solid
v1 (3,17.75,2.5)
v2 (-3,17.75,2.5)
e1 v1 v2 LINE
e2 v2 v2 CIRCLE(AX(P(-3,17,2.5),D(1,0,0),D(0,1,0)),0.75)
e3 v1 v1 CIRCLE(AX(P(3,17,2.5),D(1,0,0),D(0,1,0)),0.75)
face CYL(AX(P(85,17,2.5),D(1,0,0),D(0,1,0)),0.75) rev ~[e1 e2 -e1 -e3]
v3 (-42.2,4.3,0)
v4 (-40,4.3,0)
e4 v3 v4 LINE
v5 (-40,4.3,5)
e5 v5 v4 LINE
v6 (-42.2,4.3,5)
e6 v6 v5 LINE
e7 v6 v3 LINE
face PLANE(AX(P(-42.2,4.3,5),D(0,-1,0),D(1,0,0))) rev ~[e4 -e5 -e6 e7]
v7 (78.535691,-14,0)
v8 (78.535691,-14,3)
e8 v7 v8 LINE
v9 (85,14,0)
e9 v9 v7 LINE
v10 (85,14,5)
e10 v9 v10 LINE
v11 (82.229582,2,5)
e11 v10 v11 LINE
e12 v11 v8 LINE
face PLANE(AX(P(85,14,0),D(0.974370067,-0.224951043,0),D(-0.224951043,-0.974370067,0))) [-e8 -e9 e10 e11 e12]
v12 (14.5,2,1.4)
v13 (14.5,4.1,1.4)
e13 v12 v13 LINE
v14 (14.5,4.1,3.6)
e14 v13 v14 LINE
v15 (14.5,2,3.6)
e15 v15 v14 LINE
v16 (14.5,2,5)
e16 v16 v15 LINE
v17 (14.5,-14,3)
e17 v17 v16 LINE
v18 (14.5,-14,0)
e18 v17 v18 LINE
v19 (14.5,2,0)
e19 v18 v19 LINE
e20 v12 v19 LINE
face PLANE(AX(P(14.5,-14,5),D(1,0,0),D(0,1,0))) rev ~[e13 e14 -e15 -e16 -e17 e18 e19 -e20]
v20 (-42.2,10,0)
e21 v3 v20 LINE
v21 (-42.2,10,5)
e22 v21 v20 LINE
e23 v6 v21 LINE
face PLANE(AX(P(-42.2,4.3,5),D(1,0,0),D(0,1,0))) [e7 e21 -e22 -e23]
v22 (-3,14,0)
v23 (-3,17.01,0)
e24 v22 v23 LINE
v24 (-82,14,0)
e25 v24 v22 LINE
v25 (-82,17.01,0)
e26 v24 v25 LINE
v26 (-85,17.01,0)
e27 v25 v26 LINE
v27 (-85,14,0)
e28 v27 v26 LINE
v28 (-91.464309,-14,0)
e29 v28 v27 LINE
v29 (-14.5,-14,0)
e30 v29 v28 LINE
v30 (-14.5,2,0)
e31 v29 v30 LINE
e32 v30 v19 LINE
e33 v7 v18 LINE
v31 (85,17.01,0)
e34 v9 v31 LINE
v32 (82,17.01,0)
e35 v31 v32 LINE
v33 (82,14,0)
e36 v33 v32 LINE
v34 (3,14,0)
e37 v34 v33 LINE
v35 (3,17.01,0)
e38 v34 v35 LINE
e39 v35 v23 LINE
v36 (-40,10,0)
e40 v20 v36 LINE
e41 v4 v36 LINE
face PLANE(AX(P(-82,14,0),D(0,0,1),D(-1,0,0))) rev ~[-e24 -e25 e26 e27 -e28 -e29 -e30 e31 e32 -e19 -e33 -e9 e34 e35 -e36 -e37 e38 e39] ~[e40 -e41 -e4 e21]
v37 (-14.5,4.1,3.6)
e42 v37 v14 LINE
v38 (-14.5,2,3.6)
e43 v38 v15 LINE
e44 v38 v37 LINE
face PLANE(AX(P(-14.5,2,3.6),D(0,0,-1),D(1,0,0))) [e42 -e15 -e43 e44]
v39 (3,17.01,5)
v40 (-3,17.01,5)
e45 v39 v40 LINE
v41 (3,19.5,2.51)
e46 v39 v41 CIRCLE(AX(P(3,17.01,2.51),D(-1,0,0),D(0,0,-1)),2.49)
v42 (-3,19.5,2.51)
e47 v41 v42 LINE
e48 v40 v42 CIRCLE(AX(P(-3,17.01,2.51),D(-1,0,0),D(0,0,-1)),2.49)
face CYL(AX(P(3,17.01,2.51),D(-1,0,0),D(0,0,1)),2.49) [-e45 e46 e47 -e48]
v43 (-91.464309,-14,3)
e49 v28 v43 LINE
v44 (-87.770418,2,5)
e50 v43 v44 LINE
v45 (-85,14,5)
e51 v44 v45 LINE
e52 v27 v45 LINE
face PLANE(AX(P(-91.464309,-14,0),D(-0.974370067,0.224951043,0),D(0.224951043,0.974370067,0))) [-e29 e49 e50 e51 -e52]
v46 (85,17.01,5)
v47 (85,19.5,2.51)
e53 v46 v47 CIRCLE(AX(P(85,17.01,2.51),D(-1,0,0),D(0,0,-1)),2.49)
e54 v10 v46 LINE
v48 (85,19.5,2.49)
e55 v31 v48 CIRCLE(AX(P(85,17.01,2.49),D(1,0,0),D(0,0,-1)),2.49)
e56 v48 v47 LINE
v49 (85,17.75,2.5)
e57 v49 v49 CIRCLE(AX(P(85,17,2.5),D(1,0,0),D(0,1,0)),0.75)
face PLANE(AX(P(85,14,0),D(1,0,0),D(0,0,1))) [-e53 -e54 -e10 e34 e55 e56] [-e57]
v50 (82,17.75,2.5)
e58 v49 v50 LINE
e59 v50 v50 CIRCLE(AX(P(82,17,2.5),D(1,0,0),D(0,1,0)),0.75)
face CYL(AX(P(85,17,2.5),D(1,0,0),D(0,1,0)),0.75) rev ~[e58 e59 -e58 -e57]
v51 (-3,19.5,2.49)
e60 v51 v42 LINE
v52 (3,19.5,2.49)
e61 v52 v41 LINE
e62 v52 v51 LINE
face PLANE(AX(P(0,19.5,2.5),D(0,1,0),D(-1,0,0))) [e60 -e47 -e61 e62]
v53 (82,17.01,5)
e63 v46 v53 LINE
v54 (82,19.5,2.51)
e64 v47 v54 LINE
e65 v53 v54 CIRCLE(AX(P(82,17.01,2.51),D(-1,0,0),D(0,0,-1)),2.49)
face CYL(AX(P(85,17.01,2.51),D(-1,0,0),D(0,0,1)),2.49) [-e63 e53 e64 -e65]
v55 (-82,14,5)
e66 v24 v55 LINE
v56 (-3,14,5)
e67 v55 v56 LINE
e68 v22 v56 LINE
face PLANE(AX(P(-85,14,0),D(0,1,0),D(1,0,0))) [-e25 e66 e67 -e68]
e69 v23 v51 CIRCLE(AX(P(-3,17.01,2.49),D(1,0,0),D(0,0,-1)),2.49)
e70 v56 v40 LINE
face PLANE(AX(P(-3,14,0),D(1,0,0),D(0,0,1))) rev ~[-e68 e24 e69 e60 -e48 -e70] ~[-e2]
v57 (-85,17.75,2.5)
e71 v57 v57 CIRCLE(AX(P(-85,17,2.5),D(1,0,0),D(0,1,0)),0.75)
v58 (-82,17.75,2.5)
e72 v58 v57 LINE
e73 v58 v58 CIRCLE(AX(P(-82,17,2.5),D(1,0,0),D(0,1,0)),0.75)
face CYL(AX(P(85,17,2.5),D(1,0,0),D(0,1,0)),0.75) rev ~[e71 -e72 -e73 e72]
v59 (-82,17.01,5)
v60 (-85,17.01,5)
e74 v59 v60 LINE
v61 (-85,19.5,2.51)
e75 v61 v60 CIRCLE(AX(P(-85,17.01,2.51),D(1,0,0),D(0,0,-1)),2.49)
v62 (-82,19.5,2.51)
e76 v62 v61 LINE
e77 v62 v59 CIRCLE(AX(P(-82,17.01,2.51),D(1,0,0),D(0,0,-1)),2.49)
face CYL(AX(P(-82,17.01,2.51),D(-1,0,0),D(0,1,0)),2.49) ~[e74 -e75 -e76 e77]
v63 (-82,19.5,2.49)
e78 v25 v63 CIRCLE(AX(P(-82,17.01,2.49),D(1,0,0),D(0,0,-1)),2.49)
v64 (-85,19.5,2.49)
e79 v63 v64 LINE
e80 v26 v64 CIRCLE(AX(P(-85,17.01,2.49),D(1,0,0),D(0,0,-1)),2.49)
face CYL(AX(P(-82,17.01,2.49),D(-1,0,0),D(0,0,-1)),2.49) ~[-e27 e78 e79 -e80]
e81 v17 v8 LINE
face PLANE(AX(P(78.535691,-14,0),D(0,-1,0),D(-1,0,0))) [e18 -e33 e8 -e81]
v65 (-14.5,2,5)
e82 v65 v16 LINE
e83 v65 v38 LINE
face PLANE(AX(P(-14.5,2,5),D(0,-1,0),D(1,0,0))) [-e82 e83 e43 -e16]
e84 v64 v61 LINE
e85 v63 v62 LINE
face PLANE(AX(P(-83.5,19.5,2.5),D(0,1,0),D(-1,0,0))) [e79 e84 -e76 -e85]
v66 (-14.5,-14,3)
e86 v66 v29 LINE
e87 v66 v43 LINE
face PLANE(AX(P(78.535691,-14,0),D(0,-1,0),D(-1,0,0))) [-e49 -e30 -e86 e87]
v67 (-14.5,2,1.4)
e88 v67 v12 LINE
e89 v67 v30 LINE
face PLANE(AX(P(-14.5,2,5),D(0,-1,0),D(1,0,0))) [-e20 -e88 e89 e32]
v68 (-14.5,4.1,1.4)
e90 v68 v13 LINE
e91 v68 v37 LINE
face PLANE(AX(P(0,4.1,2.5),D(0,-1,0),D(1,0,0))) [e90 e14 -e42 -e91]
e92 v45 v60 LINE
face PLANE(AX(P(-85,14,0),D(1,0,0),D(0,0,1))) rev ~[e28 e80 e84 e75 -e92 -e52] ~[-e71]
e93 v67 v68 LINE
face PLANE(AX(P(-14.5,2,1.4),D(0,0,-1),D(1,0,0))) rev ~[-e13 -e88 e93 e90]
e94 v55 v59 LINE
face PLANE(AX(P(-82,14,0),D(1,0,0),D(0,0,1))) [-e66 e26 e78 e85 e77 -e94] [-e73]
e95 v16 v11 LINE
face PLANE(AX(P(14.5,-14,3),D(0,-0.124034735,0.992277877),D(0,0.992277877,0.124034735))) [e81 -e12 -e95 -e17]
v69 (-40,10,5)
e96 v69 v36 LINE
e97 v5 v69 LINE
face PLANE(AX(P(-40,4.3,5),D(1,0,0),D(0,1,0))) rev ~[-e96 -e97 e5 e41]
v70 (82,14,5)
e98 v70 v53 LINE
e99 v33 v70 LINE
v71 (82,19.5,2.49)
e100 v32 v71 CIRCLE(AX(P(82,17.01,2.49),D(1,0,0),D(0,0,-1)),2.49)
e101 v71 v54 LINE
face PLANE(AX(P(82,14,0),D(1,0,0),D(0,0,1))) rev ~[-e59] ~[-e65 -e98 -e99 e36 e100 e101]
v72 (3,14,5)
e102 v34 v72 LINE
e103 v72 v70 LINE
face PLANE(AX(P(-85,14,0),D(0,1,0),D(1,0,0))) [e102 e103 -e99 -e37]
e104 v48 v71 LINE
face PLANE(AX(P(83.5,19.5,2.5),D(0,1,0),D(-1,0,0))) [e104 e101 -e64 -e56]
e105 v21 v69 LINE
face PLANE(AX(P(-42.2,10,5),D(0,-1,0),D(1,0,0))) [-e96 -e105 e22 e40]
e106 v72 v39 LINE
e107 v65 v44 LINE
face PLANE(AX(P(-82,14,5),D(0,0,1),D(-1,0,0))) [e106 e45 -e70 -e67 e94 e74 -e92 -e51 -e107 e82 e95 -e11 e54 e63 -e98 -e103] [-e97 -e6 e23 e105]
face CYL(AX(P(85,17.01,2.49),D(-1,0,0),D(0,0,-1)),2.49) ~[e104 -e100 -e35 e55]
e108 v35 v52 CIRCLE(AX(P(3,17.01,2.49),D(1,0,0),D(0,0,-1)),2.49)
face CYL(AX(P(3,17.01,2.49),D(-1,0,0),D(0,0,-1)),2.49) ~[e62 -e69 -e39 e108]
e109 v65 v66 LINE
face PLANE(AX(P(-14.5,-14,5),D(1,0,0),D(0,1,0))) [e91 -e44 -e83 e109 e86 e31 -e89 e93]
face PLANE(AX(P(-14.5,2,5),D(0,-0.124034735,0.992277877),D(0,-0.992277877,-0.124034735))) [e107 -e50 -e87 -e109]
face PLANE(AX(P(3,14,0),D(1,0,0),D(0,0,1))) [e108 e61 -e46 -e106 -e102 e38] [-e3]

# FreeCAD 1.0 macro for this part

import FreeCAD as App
import Part
import Sketcher

V = App.Vector
Q = App.Units.Quantity


def edges_at(feature, points):
    """Names of the edges that pass closest to the given points."""
    edges = feature.Shape.Edges
    near = lambda p: min(range(len(edges)), key=lambda i: edges[i].distToShape(Part.Vertex(*p))[0])
    return sorted({f"Edge{near(p) + 1}" for p in points})

doc = App.newDocument("Part")
body = doc.addObject("PartDesign::Body", "Body")

# Sketch on XY plane
sketch1 = body.newObject("Sketcher::SketchObject", "Sketch")
sketch1.AttachmentSupport = (doc.getObject("XY_Plane"), [""])
sketch1.MapMode = "FlatFace"
sketch1.addGeometry(Part.LineSegment(V(85, 14, 0), V(-85, 14, 0)), False)
sketch1.addGeometry(Part.LineSegment(V(-85, 14, 0), V(-91, -14, 0)), False)
sketch1.addGeometry(Part.LineSegment(V(-91, -14, 0), V(79, -14, 0)), False)
sketch1.addGeometry(Part.LineSegment(V(79, -14, 0), V(85, 14, 0)), False)
sketch1.addConstraint(Sketcher.Constraint("Coincident", 0, 2, 1, 1))
sketch1.addConstraint(Sketcher.Constraint("Coincident", 1, 2, 2, 1))
sketch1.addConstraint(Sketcher.Constraint("Coincident", 2, 2, 3, 1))
sketch1.addConstraint(Sketcher.Constraint("Coincident", 3, 2, 0, 1))
sketch1.addConstraint(Sketcher.Constraint("Horizontal", 0))
sketch1.addConstraint(Sketcher.Constraint("Horizontal", 2))
sketch1.addConstraint(Sketcher.Constraint("Parallel", 1, 3))
sketch1.addConstraint(Sketcher.Constraint("DistanceX", 0, 2, 0, 1, 170.0))
sketch1.addConstraint(Sketcher.Constraint("Angle", 1, Q("-102.999999 deg")))
sketch1.addConstraint(Sketcher.Constraint("DistanceX", 0, 2, -1, 1, 85.0))
sketch1.addConstraint(Sketcher.Constraint("DistanceY", -1, 1, 0, 2, 14.0))
sketch1.addConstraint(Sketcher.Constraint("DistanceY", 1, 2, -1, 1, 14.0))
pad1 = body.newObject("PartDesign::Pad", "Pad")
pad1.Profile = sketch1
pad1.Length = 5

# Sketch on XY plane
sketch2 = body.newObject("Sketcher::SketchObject", "Sketch001")
sketch2.AttachmentSupport = (doc.getObject("XY_Plane"), [""])
sketch2.MapMode = "FlatFace"
sketch2.AttachmentOffset = App.Placement(V(0, 0, 5), App.Rotation())
sketch2.addGeometry(Part.LineSegment(V(-14, 2, 0), V(-14, -14, 0)), False)
sketch2.addGeometry(Part.LineSegment(V(-14, -14, 0), V(14, -14, 0)), False)
sketch2.addGeometry(Part.LineSegment(V(14, -14, 0), V(14, 2, 0)), False)
sketch2.addGeometry(Part.LineSegment(V(14, 2, 0), V(-14, 2, 0)), False)
sketch2.addConstraint(Sketcher.Constraint("Coincident", 0, 2, 1, 1))
sketch2.addConstraint(Sketcher.Constraint("Coincident", 1, 2, 2, 1))
sketch2.addConstraint(Sketcher.Constraint("Coincident", 2, 2, 3, 1))
sketch2.addConstraint(Sketcher.Constraint("Coincident", 3, 2, 0, 1))
sketch2.addConstraint(Sketcher.Constraint("Vertical", 0))
sketch2.addConstraint(Sketcher.Constraint("Horizontal", 1))
sketch2.addConstraint(Sketcher.Constraint("Vertical", 2))
sketch2.addConstraint(Sketcher.Constraint("Horizontal", 3))
sketch2.addConstraint(Sketcher.Constraint("DistanceX", 1, 1, 1, 2, 29.0))
sketch2.addConstraint(Sketcher.Constraint("DistanceY", 0, 2, 0, 1, 16.0))
sketch2.addConstraint(Sketcher.Constraint("DistanceY", 0, 2, -1, 1, 14.0))
sketch2.addConstraint(Sketcher.Constraint("DistanceX", 0, 2, -1, 1, 14.5))
pocket1 = body.newObject("PartDesign::Pocket", "Pocket")
pocket1.Profile = sketch2
pocket1.Length = 5

# Sketch on XZ plane
sketch3 = body.newObject("Sketcher::SketchObject", "Sketch002")
sketch3.AttachmentSupport = (doc.getObject("XZ_Plane"), [""])
sketch3.MapMode = "FlatFace"
sketch3.AttachmentOffset = App.Placement(V(0, 0, -2), App.Rotation())
sketch3.addGeometry(Part.LineSegment(V(-14.5, 3.6, 0), V(-14.5, 1.4, 0)), False)
sketch3.addGeometry(Part.LineSegment(V(-14.5, 1.4, 0), V(14.5, 1.4, 0)), False)
sketch3.addGeometry(Part.LineSegment(V(14.5, 1.4, 0), V(14.5, 3.6, 0)), False)
sketch3.addGeometry(Part.LineSegment(V(14.5, 3.6, 0), V(-14.5, 3.6, 0)), False)
sketch3.addConstraint(Sketcher.Constraint("Coincident", 0, 2, 1, 1))
sketch3.addConstraint(Sketcher.Constraint("Coincident", 1, 2, 2, 1))
sketch3.addConstraint(Sketcher.Constraint("Coincident", 2, 2, 3, 1))
sketch3.addConstraint(Sketcher.Constraint("Coincident", 3, 2, 0, 1))
sketch3.addConstraint(Sketcher.Constraint("Vertical", 0))
sketch3.addConstraint(Sketcher.Constraint("Horizontal", 1))
sketch3.addConstraint(Sketcher.Constraint("Vertical", 2))
sketch3.addConstraint(Sketcher.Constraint("Horizontal", 3))
sketch3.addConstraint(Sketcher.Constraint("DistanceX", 1, 1, 1, 2, 29.0))
sketch3.addConstraint(Sketcher.Constraint("DistanceY", 0, 2, 0, 1, 2.2))
sketch3.addConstraint(Sketcher.Constraint("DistanceX", 0, 2, -1, 1, 14.5))
sketch3.addConstraint(Sketcher.Constraint("DistanceY", -1, 1, 0, 2, 1.4))
pocket2 = body.newObject("PartDesign::Pocket", "Pocket001")
pocket2.Profile = sketch3
pocket2.Length = 2.1

# Sketch on YZ plane
sketch4 = body.newObject("Sketcher::SketchObject", "Sketch003")
sketch4.AttachmentSupport = (doc.getObject("YZ_Plane"), [""])
sketch4.MapMode = "FlatFace"
sketch4.AttachmentOffset = App.Placement(V(0, 0, -14.5), App.Rotation())
sketch4.addGeometry(Part.LineSegment(V(2, 5, 0), V(-14, 5, 0)), False)
sketch4.addGeometry(Part.LineSegment(V(-14, 5, 0), V(-14, 3, 0)), False)
sketch4.addGeometry(Part.LineSegment(V(-14, 3, 0), V(2, 5, 0)), False)
sketch4.addConstraint(Sketcher.Constraint("Coincident", 0, 2, 1, 1))
sketch4.addConstraint(Sketcher.Constraint("Coincident", 1, 2, 2, 1))
sketch4.addConstraint(Sketcher.Constraint("Coincident", 2, 2, 0, 1))
sketch4.addConstraint(Sketcher.Constraint("Horizontal", 0))
sketch4.addConstraint(Sketcher.Constraint("Vertical", 1))
sketch4.addConstraint(Sketcher.Constraint("DistanceX", 0, 2, 0, 1, 16.0))
sketch4.addConstraint(Sketcher.Constraint("DistanceY", 1, 2, 1, 1, 2.0))
sketch4.addConstraint(Sketcher.Constraint("DistanceX", 0, 2, -1, 1, 14.0))
sketch4.addConstraint(Sketcher.Constraint("DistanceY", -1, 1, 0, 2, 5.0))
pocket3 = body.newObject("PartDesign::Pocket", "Pocket002")
pocket3.Profile = sketch4
pocket3.Length = 100

# Sketch on YZ plane
sketch5 = body.newObject("Sketcher::SketchObject", "Sketch004")
sketch5.AttachmentSupport = (doc.getObject("YZ_Plane"), [""])
sketch5.MapMode = "FlatFace"
sketch5.AttachmentOffset = App.Placement(V(0, 0, 14.5), App.Rotation())
sketch5.addGeometry(Part.LineSegment(V(-14, 5, 0), V(2, 5, 0)), False)
sketch5.addGeometry(Part.LineSegment(V(2, 5, 0), V(-14, 3, 0)), False)
sketch5.addGeometry(Part.LineSegment(V(-14, 3, 0), V(-14, 5, 0)), False)
sketch5.addConstraint(Sketcher.Constraint("Coincident", 0, 2, 1, 1))
sketch5.addConstraint(Sketcher.Constraint("Coincident", 1, 2, 2, 1))
sketch5.addConstraint(Sketcher.Constraint("Coincident", 2, 2, 0, 1))
sketch5.addConstraint(Sketcher.Constraint("Horizontal", 0))
sketch5.addConstraint(Sketcher.Constraint("Vertical", 2))
sketch5.addConstraint(Sketcher.Constraint("DistanceX", 0, 1, 0, 2, 16.0))
sketch5.addConstraint(Sketcher.Constraint("DistanceY", 2, 1, 2, 2, 2.0))
sketch5.addConstraint(Sketcher.Constraint("DistanceX", -1, 1, 0, 2, 2.0))
sketch5.addConstraint(Sketcher.Constraint("DistanceY", -1, 1, 0, 2, 5.0))
pocket4 = body.newObject("PartDesign::Pocket", "Pocket003")
pocket4.Profile = sketch5
pocket4.Length = 100
pocket4.Reversed = True

# Sketch on XZ plane
sketch6 = body.newObject("Sketcher::SketchObject", "Sketch005")
sketch6.AttachmentSupport = (doc.getObject("XZ_Plane"), [""])
sketch6.MapMode = "FlatFace"
sketch6.AttachmentOffset = App.Placement(V(0, 0, -14), App.Rotation())
sketch6.addGeometry(Part.LineSegment(V(-82, 5, 0), V(-82, 0, 0)), False)
sketch6.addGeometry(Part.LineSegment(V(-82, 0, 0), V(-85, 0, 0)), False)
sketch6.addGeometry(Part.LineSegment(V(-85, 0, 0), V(-85, 5, 0)), False)
sketch6.addGeometry(Part.LineSegment(V(-85, 5, 0), V(-82, 5, 0)), False)
sketch6.addGeometry(Part.LineSegment(V(85, 5, 0), V(85, 0, 0)), False)
sketch6.addGeometry(Part.LineSegment(V(85, 0, 0), V(82, 0, 0)), False)
sketch6.addGeometry(Part.LineSegment(V(82, 0, 0), V(82, 5, 0)), False)
sketch6.addGeometry(Part.LineSegment(V(82, 5, 0), V(85, 5, 0)), False)
sketch6.addGeometry(Part.LineSegment(V(3, 5, 0), V(3, 0, 0)), False)
sketch6.addGeometry(Part.LineSegment(V(3, 0, 0), V(-3, 0, 0)), False)
sketch6.addGeometry(Part.LineSegment(V(-3, 0, 0), V(-3, 5, 0)), False)
sketch6.addGeometry(Part.LineSegment(V(-3, 5, 0), V(3, 5, 0)), False)
sketch6.addConstraint(Sketcher.Constraint("Coincident", 0, 2, 1, 1))
sketch6.addConstraint(Sketcher.Constraint("Coincident", 1, 2, 2, 1))
sketch6.addConstraint(Sketcher.Constraint("Coincident", 2, 2, 3, 1))
sketch6.addConstraint(Sketcher.Constraint("Coincident", 3, 2, 0, 1))
sketch6.addConstraint(Sketcher.Constraint("Coincident", 4, 2, 5, 1))
sketch6.addConstraint(Sketcher.Constraint("Coincident", 5, 2, 6, 1))
sketch6.addConstraint(Sketcher.Constraint("Coincident", 6, 2, 7, 1))
sketch6.addConstraint(Sketcher.Constraint("Coincident", 7, 2, 4, 1))
sketch6.addConstraint(Sketcher.Constraint("Coincident", 8, 2, 9, 1))
sketch6.addConstraint(Sketcher.Constraint("Coincident", 9, 2, 10, 1))
sketch6.addConstraint(Sketcher.Constraint("Coincident", 10, 2, 11, 1))
sketch6.addConstraint(Sketcher.Constraint("Coincident", 11, 2, 8, 1))
sketch6.addConstraint(Sketcher.Constraint("Vertical", 0))
sketch6.addConstraint(Sketcher.Constraint("Horizontal", 1))
sketch6.addConstraint(Sketcher.Constraint("Vertical", 2))
sketch6.addConstraint(Sketcher.Constraint("Horizontal", 3))
sketch6.addConstraint(Sketcher.Constraint("Vertical", 4))
sketch6.addConstraint(Sketcher.Constraint("Horizontal", 5))
sketch6.addConstraint(Sketcher.Constraint("Vertical", 6))
sketch6.addConstraint(Sketcher.Constraint("Horizontal", 7))
sketch6.addConstraint(Sketcher.Constraint("Vertical", 8))
sketch6.addConstraint(Sketcher.Constraint("Horizontal", 9))
sketch6.addConstraint(Sketcher.Constraint("Vertical", 10))
sketch6.addConstraint(Sketcher.Constraint("Horizontal", 11))
sketch6.addConstraint(Sketcher.Constraint("Symmetric", 1, 2, 4, 2, -1, 1))
sketch6.addConstraint(Sketcher.Constraint("Symmetric", 8, 2, 9, 2, -1, 1))
sketch6.addConstraint(Sketcher.Constraint("Symmetric", 0, 2, 5, 2, -2))
sketch6.addConstraint(Sketcher.Constraint("Horizontal", 3, 2, 6, 2))
sketch6.addConstraint(Sketcher.Constraint("Horizontal", 7, 2, 10, 2))
sketch6.addConstraint(Sketcher.Constraint("DistanceX", 1, 2, 1, 1, 3.0))
sketch6.addConstraint(Sketcher.Constraint("DistanceX", 9, 2, 9, 1, 6.0))
sketch6.addConstraint(Sketcher.Constraint("DistanceY", 0, 2, 0, 1, 5.0))
sketch6.addConstraint(Sketcher.Constraint("DistanceX", 0, 2, -1, 1, 82.0))
pad2 = body.newObject("PartDesign::Pad", "Pad001")
pad2.Profile = sketch6
pad2.Length = 5.5
pad2.Reversed = True

# Sketch on XY plane
sketch7 = body.newObject("Sketcher::SketchObject", "Sketch006")
sketch7.AttachmentSupport = (doc.getObject("XY_Plane"), [""])
sketch7.MapMode = "FlatFace"
sketch7.AttachmentOffset = App.Placement(V(0, 0, 5), App.Rotation())
sketch7.addGeometry(Part.LineSegment(V(-42.2, 10, 0), V(-42.2, 4.3, 0)), False)
sketch7.addGeometry(Part.LineSegment(V(-42.2, 4.3, 0), V(-40, 4.3, 0)), False)
sketch7.addGeometry(Part.LineSegment(V(-40, 4.3, 0), V(-40, 10, 0)), False)
sketch7.addGeometry(Part.LineSegment(V(-40, 10, 0), V(-42.2, 10, 0)), False)
sketch7.addConstraint(Sketcher.Constraint("Coincident", 0, 2, 1, 1))
sketch7.addConstraint(Sketcher.Constraint("Coincident", 1, 2, 2, 1))
sketch7.addConstraint(Sketcher.Constraint("Coincident", 2, 2, 3, 1))
sketch7.addConstraint(Sketcher.Constraint("Coincident", 3, 2, 0, 1))
sketch7.addConstraint(Sketcher.Constraint("Vertical", 0))
sketch7.addConstraint(Sketcher.Constraint("Horizontal", 1))
sketch7.addConstraint(Sketcher.Constraint("Vertical", 2))
sketch7.addConstraint(Sketcher.Constraint("Horizontal", 3))
sketch7.addConstraint(Sketcher.Constraint("DistanceX", 1, 1, 1, 2, 2.2))
sketch7.addConstraint(Sketcher.Constraint("DistanceY", 0, 2, 0, 1, 5.7))
sketch7.addConstraint(Sketcher.Constraint("DistanceX", 1, 2, -1, 1, 40.0))
sketch7.addConstraint(Sketcher.Constraint("DistanceY", -1, 1, 2, 2, 10.0))
pocket5 = body.newObject("PartDesign::Pocket", "Pocket004")
pocket5.Profile = sketch7
pocket5.Length = 5

# Sketch on YZ plane
sketch8 = body.newObject("Sketcher::SketchObject", "Sketch007")
sketch8.AttachmentSupport = (doc.getObject("YZ_Plane"), [""])
sketch8.MapMode = "FlatFace"
sketch8.AttachmentOffset = App.Placement(V(0, 0, 85), App.Rotation())
sketch8.addGeometry(Part.Circle(V(17, 2.5, 0), V(0, 0, 1), 0.8), False)
sketch8.addConstraint(Sketcher.Constraint("Diameter", 0, 1.5))
sketch8.addConstraint(Sketcher.Constraint("DistanceX", -1, 1, 0, 3, 17.0))
sketch8.addConstraint(Sketcher.Constraint("DistanceY", -1, 1, 0, 3, 2.5))
pocket6 = body.newObject("PartDesign::Pocket", "Pocket005")
pocket6.Profile = sketch8
pocket6.Length = 200
doc.recompute()

fillet = body.newObject("PartDesign::Fillet", "Fillet")
fillet.Base = (pocket6, edges_at(pocket6, [
    (83.5, 19.5, 5),
    (83.5, 19.5, 0),
    (0, 19.5, 5),
    (0, 19.5, 0),
    (-83.5, 19.5, 5),
    (-83.5, 19.5, 0),
]))
fillet.Radius = 2.49

doc.recompute()
